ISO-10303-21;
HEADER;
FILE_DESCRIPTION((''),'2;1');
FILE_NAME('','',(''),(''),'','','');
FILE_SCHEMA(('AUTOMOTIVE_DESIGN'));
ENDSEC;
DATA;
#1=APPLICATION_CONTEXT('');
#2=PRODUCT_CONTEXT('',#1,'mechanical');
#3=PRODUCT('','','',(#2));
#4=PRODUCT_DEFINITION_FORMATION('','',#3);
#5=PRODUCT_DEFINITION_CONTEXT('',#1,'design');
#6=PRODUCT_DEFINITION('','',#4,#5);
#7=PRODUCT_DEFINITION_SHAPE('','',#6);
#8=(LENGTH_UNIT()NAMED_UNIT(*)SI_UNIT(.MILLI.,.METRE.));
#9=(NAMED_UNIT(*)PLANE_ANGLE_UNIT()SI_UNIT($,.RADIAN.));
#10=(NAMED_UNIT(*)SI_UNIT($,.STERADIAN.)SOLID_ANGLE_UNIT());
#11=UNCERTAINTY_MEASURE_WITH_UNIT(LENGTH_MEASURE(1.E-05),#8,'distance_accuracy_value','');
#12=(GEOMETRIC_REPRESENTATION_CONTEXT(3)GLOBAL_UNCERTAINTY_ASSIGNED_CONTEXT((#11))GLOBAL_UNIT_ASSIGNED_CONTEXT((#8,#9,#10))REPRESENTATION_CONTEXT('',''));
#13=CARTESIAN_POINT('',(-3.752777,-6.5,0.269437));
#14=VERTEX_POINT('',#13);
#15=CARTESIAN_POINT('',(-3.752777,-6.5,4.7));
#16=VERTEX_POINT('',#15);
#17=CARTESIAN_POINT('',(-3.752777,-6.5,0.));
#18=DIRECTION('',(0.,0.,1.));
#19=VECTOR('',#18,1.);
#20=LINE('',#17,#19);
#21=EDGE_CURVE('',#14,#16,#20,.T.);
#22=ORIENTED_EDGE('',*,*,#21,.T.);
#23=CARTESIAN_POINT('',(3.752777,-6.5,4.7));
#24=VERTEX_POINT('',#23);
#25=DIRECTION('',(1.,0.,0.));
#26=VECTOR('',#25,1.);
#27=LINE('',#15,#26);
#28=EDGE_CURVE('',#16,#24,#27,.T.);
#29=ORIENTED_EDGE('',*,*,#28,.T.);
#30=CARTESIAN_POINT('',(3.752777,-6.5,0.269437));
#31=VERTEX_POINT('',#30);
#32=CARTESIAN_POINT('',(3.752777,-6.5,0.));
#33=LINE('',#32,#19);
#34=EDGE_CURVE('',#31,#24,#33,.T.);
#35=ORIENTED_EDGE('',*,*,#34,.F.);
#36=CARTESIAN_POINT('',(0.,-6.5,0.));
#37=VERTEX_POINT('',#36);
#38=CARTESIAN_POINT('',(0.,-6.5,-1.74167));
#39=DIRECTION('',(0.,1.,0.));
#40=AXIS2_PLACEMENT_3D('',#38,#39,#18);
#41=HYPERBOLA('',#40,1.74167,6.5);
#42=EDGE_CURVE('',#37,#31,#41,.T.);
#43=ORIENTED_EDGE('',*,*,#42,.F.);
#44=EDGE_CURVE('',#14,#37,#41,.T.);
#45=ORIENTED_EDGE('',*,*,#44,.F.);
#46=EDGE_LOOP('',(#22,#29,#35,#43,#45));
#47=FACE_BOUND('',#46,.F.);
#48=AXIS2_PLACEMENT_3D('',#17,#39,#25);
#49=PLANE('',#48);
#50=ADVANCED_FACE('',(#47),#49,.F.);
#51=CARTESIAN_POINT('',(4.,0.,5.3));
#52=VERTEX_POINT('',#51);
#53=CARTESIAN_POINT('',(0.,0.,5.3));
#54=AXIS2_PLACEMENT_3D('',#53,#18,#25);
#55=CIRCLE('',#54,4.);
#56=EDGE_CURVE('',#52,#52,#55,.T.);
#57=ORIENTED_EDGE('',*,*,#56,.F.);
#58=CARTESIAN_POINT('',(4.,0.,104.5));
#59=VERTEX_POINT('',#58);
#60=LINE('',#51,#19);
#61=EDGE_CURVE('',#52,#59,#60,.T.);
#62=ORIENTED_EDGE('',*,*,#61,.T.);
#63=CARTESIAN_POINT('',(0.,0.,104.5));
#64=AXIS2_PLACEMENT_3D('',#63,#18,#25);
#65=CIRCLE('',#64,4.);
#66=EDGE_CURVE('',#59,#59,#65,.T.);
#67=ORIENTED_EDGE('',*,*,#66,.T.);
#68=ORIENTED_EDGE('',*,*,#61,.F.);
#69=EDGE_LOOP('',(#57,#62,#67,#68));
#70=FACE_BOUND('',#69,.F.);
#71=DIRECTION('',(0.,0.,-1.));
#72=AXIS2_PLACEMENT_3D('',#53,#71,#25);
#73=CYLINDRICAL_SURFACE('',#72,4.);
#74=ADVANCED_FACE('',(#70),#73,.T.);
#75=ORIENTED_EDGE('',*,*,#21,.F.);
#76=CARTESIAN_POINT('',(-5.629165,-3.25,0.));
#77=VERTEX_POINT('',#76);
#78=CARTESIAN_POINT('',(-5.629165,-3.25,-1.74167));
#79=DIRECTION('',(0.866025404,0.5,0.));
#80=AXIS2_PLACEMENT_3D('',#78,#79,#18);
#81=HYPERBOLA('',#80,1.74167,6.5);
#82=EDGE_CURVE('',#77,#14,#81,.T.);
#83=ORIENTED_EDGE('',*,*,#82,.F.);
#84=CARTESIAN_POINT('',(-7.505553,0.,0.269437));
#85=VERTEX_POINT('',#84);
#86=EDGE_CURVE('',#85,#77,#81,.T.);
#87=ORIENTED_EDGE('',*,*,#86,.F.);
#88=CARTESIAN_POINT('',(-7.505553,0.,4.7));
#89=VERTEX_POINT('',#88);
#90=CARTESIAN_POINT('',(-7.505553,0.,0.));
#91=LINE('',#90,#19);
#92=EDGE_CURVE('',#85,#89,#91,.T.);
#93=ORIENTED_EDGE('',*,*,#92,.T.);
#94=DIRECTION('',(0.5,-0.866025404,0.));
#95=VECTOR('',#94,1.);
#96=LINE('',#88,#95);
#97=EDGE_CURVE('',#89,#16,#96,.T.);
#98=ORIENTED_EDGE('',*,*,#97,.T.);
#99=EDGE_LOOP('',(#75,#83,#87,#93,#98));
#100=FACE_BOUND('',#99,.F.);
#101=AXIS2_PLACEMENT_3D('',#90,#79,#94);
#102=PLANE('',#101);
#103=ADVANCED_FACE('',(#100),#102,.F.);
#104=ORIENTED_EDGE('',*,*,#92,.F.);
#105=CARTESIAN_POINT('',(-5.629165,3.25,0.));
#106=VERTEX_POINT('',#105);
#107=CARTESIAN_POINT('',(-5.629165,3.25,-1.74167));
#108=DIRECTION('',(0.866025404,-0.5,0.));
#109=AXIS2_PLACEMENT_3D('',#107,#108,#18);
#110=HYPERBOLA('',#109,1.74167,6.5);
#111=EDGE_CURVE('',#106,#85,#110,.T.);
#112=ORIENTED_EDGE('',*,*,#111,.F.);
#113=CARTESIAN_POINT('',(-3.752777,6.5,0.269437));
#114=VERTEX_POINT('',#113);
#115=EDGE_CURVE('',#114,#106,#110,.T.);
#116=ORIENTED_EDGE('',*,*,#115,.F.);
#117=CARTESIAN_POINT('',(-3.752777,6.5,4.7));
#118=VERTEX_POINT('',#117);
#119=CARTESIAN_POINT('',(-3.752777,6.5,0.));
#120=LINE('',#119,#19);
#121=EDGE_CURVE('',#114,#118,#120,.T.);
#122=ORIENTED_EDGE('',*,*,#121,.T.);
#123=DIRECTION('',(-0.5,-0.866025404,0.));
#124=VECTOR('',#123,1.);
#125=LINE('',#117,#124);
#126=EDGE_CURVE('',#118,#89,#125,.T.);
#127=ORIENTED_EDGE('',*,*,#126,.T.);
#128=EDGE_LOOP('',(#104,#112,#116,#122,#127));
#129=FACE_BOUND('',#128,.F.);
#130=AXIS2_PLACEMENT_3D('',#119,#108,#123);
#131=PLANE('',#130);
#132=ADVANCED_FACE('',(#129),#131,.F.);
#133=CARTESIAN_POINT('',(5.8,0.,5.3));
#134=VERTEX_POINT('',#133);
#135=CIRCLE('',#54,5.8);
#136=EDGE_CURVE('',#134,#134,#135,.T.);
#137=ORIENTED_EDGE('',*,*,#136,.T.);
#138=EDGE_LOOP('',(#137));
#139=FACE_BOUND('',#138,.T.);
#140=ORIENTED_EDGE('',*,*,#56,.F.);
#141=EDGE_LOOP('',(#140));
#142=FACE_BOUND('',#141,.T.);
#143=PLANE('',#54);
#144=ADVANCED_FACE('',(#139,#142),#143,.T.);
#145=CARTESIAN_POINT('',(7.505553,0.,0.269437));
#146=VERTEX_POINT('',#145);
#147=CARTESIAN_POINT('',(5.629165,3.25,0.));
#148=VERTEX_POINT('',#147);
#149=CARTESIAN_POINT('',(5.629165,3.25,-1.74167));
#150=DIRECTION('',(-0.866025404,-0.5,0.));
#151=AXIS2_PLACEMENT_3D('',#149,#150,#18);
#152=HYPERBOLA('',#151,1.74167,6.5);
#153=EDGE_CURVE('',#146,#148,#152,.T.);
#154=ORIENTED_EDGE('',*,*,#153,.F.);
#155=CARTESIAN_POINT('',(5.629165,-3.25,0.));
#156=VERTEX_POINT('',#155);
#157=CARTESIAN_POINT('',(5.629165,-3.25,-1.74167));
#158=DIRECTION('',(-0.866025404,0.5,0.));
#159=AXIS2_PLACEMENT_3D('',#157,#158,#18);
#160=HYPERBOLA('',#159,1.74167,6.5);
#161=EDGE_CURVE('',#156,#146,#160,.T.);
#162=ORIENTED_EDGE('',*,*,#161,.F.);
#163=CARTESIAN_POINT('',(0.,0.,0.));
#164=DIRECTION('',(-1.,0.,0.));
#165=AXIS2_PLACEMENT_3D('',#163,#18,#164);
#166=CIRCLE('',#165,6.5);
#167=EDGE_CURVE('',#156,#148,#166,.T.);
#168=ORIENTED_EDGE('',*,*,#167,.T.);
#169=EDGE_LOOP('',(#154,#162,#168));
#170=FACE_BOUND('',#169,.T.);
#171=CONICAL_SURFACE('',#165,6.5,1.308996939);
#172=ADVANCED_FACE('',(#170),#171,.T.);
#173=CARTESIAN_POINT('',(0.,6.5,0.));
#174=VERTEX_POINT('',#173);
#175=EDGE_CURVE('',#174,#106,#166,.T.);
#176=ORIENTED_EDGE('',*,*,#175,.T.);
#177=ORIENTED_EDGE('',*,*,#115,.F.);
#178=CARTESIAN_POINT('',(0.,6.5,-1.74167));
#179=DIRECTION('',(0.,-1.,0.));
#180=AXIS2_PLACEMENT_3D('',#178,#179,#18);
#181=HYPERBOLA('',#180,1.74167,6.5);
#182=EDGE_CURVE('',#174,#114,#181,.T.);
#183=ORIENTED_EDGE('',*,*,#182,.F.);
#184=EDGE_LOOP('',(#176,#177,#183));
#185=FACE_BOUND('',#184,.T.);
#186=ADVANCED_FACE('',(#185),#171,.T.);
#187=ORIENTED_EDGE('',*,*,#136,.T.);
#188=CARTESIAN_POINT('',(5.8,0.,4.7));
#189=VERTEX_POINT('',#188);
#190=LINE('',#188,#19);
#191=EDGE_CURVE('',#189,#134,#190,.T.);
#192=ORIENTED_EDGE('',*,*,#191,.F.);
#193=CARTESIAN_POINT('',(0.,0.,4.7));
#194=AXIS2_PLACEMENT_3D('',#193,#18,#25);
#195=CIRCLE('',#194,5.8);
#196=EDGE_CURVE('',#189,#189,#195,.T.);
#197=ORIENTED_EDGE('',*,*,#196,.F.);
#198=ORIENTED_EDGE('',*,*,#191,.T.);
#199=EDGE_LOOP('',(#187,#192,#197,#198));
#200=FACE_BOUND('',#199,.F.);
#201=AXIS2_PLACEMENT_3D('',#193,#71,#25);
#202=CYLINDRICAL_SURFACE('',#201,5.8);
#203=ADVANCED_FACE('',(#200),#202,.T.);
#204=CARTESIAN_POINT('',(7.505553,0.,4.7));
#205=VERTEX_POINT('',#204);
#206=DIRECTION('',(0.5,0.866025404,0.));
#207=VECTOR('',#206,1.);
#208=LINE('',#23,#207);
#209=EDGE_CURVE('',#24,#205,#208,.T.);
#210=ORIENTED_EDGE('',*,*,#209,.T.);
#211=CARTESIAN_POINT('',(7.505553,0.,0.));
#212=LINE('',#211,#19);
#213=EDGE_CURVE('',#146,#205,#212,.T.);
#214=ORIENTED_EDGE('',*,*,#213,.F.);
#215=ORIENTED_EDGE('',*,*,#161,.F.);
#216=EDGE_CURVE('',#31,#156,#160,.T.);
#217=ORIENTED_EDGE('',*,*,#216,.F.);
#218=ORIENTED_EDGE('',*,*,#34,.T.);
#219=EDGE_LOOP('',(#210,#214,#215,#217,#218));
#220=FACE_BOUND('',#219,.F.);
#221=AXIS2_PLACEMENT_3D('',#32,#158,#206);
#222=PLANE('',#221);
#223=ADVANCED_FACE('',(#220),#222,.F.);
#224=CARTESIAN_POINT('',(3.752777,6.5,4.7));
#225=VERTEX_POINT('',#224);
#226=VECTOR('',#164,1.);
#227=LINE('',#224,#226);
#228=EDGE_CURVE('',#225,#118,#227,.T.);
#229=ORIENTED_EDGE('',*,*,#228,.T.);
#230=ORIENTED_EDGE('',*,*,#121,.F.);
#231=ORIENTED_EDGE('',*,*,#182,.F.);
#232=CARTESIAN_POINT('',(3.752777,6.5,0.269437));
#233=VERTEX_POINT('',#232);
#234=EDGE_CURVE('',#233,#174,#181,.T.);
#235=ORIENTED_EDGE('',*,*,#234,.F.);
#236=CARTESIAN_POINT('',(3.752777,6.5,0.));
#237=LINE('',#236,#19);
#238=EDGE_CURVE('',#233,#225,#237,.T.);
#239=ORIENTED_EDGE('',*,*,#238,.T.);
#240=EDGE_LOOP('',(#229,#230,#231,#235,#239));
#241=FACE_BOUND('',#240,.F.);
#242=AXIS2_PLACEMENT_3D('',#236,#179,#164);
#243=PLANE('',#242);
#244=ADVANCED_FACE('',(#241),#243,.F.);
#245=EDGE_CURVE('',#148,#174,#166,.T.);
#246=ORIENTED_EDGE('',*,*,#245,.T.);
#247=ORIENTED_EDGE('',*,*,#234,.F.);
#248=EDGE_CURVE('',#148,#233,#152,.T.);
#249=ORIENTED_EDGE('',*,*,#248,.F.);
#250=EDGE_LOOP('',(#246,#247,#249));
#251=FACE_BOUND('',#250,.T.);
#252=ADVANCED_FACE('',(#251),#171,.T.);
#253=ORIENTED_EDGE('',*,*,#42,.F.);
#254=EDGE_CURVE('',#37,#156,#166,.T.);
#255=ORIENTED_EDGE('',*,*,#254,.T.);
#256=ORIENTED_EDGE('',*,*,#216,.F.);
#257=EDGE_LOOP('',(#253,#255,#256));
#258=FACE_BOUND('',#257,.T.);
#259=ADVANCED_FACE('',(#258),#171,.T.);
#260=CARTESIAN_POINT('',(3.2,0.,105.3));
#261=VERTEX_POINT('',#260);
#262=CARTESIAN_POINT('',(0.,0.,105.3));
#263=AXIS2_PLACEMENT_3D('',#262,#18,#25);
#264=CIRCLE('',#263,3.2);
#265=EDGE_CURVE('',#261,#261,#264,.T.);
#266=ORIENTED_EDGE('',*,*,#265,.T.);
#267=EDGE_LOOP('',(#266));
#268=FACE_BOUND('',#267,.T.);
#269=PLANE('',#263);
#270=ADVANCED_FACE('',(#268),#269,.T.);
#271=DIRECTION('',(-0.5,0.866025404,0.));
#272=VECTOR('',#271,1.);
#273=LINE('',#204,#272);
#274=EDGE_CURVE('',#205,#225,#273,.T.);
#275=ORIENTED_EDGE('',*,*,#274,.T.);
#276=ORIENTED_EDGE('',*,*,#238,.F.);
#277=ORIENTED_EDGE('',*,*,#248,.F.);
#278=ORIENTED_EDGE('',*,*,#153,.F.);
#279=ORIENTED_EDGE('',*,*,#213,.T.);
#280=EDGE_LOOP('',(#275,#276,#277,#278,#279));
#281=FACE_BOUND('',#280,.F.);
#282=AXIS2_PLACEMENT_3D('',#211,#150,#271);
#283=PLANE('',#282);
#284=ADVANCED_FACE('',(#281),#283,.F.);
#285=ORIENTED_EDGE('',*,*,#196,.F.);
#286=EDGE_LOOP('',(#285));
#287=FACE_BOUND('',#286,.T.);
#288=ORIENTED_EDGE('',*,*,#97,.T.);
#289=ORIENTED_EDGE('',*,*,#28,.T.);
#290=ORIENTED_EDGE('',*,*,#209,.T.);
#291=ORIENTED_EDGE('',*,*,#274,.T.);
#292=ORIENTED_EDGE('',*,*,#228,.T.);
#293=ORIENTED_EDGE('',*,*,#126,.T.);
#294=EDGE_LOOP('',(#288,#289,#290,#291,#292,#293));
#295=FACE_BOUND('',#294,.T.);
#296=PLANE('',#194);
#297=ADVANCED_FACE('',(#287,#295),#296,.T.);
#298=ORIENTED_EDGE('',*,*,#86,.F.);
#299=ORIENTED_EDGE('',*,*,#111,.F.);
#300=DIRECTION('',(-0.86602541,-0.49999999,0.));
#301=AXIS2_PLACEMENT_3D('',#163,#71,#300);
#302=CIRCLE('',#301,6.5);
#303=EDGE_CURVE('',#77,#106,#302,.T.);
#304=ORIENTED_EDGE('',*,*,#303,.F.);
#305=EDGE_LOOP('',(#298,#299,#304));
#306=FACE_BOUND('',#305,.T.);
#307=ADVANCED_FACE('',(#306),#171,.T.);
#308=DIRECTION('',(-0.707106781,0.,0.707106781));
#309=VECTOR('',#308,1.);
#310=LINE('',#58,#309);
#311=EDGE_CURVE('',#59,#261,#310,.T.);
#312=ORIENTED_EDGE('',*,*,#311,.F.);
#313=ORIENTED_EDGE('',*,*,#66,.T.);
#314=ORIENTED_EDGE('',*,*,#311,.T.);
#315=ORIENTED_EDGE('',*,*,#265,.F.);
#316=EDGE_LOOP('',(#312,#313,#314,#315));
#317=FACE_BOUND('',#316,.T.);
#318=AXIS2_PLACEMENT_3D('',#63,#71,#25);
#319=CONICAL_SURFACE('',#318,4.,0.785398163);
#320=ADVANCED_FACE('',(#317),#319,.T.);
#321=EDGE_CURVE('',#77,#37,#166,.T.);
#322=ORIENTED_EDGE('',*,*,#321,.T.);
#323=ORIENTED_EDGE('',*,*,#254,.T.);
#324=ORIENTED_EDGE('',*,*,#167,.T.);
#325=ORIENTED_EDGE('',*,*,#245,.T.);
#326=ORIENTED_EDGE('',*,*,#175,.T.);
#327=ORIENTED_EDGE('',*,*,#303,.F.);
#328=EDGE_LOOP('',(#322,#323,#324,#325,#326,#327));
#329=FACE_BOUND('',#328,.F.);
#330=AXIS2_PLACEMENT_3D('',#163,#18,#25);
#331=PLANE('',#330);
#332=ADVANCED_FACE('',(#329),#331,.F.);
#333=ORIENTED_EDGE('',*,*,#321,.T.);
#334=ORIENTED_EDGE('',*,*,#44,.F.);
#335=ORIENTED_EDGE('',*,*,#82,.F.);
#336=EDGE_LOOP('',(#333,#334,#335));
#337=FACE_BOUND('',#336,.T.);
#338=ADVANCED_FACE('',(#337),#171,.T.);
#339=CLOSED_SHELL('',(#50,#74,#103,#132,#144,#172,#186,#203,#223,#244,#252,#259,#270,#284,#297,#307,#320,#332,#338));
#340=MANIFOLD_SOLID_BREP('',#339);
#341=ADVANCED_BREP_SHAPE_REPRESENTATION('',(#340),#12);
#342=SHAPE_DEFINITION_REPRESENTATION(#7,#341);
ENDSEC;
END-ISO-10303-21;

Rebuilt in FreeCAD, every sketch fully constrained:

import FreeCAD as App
import Part
import Sketcher
Q = App.Units.Quantity


def edges_at(feature, points):
    """Names of the edges that pass closest to the given points."""
    edges = feature.Shape.Edges
    near = lambda p: min(range(len(edges)), key=lambda i: edges[i].distToShape(Part.Vertex(*p))[0])
    return sorted({f"Edge{near(p) + 1}" for p in points})


def add_polygon(sketch, points):
    """Adds a closed chain of lines whose ends are joined by coincident constraints."""
    first, n = sketch.GeometryCount, len(points)
    for a, b in zip(points, points[1:] + points[:1]):
        sketch.addGeometry(Part.LineSegment(App.Vector(*a, 0), App.Vector(*b, 0)), False)
    for i in range(n):
        sketch.addConstraint(Sketcher.Constraint("Coincident", first + i, 2, first + (i + 1) % n, 1))

doc = App.newDocument("Part")
params = doc.addObject("Spreadsheet::Sheet", "Params")
for row, (alias, value) in enumerate([
    ("pad1_length", "4.7 mm"),
    ("groove_angle", "360 deg"),
    ("sketch3_diameter", "11.6 mm"),
    ("pad2_length", "0.6 mm"),
    ("sketch4_diameter", "8 mm"),
    ("pad3_length", "100 mm"),
    ("chamfer_size", "0.8 mm"),
], start=1):
    params.set(f"A{row}", alias)
    params.set(f"B{row}", "=" + value)
    params.setAlias(f"B{row}", alias)

body = doc.addObject("PartDesign::Body", "Body")

# Sketch on XY plane
sketch1 = body.newObject("Sketcher::SketchObject", "Sketch")
sketch1.AttachmentSupport = (doc.getObject("XY_Plane"), [""])
sketch1.MapMode = "FlatFace"
add_polygon(sketch1, [(-3.752777, -6.5), (3.752777, -6.5), (7.505554, 0), (3.752777, 6.5), (-3.752777, 6.5), (-7.505554, 0)])  # lines 0-5
sketch1.addConstraint([
    Sketcher.Constraint("Horizontal", 0),
    Sketcher.Constraint("Horizontal", 3),
    Sketcher.Constraint("Symmetric", 0, 2, 3, 2, -1, 1),
    Sketcher.Constraint("Symmetric", 1, 2, 4, 2, -1, 1),
    Sketcher.Constraint("PointOnObject", 1, 2, -1),
    Sketcher.Constraint("Parallel", 2, 5),
    Sketcher.Constraint("Vertical", 0, 2, 2, 2),
    Sketcher.Constraint("Angle", 1, Q("60 deg")),
    Sketcher.Constraint("DistanceY", 0, 2, 2, 2, 13.0),
    Sketcher.Constraint("DistanceX", 0, 1, 0, 2, 7.505554),
])
pad1 = body.newObject("PartDesign::Pad", "Pad")
pad1.Profile = sketch1
pad1.setExpression("Length", "Params.pad1_length")

# Sketch on XZ plane
sketch2 = body.newObject("Sketcher::SketchObject", "Sketch001")
sketch2.AttachmentSupport = (doc.getObject("XZ_Plane"), [""])
sketch2.MapMode = "FlatFace"
add_polygon(sketch2, [(-7.505554, 0), (-6.5, 0), (-7.505554, 0.269437)])  # lines 0-2
sketch2.addConstraint([
    Sketcher.Constraint("Horizontal", 0),
    Sketcher.Constraint("Vertical", 2),
    Sketcher.Constraint("PointOnObject", 0, 2, -1),
    Sketcher.Constraint("Angle", 1, Q("165 deg")),
    Sketcher.Constraint("DistanceX", 0, 2, -1, 1, 6.5),
    Sketcher.Constraint("DistanceX", 0, 1, 0, 2, 1.005554),
])
groove = body.newObject("PartDesign::Groove", "Groove")
groove.Profile = sketch2
groove.ReferenceAxis = (sketch2, ["V_Axis"])
groove.setExpression("Angle", "Params.groove_angle")

# Sketch on XY plane
sketch3 = body.newObject("Sketcher::SketchObject", "Sketch002")
sketch3.AttachmentSupport = (doc.getObject("XY_Plane"), [""])
sketch3.MapMode = "FlatFace"
sketch3.AttachmentOffset = App.Placement(App.Vector(0, 0, 4.7), App.Rotation())
sketch3.addGeometry(Part.Circle(App.Vector(0, 0, 0), App.Vector(0, 0, 1), 5.8), False)
sketch3.addConstraint([
    Sketcher.Constraint("Coincident", 0, 3, -1, 1),
    Sketcher.Constraint("Diameter", 0, 11.6),
])
sketch3.setExpression("Constraints[1]", "Params.sketch3_diameter")
pad2 = body.newObject("PartDesign::Pad", "Pad001")
pad2.Profile = sketch3
pad2.setExpression("Length", "Params.pad2_length")

# Sketch on XY plane
sketch4 = body.newObject("Sketcher::SketchObject", "Sketch003")
sketch4.AttachmentSupport = (doc.getObject("XY_Plane"), [""])
sketch4.MapMode = "FlatFace"
sketch4.AttachmentOffset = App.Placement(App.Vector(0, 0, 5.3), App.Rotation())
sketch4.addGeometry(Part.Circle(App.Vector(0, 0, 0), App.Vector(0, 0, 1), 4), False)
sketch4.addConstraint([
    Sketcher.Constraint("Coincident", 0, 3, -1, 1),
    Sketcher.Constraint("Diameter", 0, 8.0),
])
sketch4.setExpression("Constraints[1]", "Params.sketch4_diameter")
pad3 = body.newObject("PartDesign::Pad", "Pad002")
pad3.Profile = sketch4
pad3.setExpression("Length", "Params.pad3_length")
doc.recompute()

chamfer = body.newObject("PartDesign::Chamfer", "Chamfer")
chamfer.Base = (pad3, edges_at(pad3, [(-4, 0, 105.3)]))
chamfer.setExpression("Size", "Params.chamfer_size")

doc.recompute()
